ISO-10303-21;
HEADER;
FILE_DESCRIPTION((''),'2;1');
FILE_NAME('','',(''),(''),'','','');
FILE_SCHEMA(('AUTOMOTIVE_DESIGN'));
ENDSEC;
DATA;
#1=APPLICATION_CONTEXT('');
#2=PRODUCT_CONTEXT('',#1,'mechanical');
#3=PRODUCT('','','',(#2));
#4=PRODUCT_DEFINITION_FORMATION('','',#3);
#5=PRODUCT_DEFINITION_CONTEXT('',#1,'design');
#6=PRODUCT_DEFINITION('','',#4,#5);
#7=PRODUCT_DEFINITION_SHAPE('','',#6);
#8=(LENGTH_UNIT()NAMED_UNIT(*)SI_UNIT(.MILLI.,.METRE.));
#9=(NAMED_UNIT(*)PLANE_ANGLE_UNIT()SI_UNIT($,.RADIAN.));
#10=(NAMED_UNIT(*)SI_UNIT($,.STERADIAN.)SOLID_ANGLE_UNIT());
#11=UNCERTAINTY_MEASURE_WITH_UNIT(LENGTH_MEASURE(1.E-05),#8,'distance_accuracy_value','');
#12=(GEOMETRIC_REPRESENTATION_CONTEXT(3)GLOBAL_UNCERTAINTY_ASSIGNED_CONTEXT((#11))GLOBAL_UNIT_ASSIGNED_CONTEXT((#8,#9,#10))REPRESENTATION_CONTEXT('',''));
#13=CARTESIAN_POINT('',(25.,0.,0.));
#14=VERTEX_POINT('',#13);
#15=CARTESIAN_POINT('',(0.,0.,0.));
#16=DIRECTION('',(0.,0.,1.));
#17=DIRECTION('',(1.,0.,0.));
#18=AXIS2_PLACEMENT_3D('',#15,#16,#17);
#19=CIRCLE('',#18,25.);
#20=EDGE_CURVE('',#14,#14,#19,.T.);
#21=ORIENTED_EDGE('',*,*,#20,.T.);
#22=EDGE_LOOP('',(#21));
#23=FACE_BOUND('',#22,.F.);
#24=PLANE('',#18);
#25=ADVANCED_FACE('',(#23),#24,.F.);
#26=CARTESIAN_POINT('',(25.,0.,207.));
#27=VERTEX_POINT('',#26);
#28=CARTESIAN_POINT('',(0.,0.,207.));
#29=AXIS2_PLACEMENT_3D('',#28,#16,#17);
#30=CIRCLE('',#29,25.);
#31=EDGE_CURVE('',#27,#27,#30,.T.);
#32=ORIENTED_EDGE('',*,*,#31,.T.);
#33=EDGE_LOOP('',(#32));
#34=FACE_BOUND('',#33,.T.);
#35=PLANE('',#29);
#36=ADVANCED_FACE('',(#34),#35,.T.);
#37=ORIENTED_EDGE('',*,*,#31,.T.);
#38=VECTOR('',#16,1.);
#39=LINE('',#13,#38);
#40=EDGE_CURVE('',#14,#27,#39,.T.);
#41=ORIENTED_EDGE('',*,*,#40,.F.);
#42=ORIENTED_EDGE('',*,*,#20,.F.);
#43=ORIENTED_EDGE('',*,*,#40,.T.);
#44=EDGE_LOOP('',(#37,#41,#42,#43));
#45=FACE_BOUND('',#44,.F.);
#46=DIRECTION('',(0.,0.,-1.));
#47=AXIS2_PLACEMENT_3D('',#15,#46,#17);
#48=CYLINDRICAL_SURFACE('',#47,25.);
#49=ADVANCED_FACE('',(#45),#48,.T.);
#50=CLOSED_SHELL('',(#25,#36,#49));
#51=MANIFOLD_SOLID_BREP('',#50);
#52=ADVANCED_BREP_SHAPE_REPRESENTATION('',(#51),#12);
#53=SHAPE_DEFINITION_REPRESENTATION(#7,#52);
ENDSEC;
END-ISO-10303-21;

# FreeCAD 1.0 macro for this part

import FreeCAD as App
import Part
import Sketcher
from FreeCAD import Vector
Q = App.Units.Quantity

doc = App.newDocument("Part")
body = doc.addObject("PartDesign::Body", "Body")

# Sketch on XY plane
sketch1 = body.newObject("Sketcher::SketchObject", "Sketch")
sketch1.AttachmentSupport = (doc.getObject("XY_Plane"), [""])
sketch1.MapMode = "FlatFace"
sketch1.addGeometry(Part.Circle(Vector(0, 0, 0), Vector(0, 0, 1), 25), False)
sketch1.addConstraint([
    Sketcher.Constraint("Coincident", 0, 3, -1, 1),
    Sketcher.Constraint("Diameter", 0, Q("50 mm")),
])
pad1 = body.newObject("PartDesign::Pad", "Pad")
pad1.Profile = sketch1
pad1.Length = 207

doc.recompute()
